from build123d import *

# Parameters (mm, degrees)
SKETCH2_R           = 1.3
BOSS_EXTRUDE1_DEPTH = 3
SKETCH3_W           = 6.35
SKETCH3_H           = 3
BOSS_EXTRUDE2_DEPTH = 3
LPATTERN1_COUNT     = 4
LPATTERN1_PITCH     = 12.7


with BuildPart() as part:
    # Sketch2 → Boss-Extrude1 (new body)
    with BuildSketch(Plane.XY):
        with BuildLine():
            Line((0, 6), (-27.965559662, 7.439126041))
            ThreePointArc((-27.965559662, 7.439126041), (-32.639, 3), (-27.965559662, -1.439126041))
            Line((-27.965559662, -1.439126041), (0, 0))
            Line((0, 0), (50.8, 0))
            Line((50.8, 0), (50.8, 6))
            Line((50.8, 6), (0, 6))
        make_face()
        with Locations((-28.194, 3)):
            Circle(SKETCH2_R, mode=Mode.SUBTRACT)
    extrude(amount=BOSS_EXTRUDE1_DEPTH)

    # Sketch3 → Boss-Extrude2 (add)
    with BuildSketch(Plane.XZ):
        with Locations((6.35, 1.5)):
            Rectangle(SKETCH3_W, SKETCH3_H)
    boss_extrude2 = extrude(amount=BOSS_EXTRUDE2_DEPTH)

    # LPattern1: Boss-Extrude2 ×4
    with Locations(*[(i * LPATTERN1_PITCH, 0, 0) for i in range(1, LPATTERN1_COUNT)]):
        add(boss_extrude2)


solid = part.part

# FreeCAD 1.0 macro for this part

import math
import FreeCAD as App
import Part
import Sketcher

V = App.Vector

doc = App.newDocument("Part")
body = doc.addObject("PartDesign::Body", "Body")

sketch1 = body.newObject("Sketcher::SketchObject", "Sketch")
sketch1.AttachmentSupport = (doc.getObject("XY_Plane"), [""])
sketch1.MapMode = "FlatFace"
sketch1.addGeometry([
    Part.LineSegment(V(0, 6, 0), V(-28, 7.4, 0)),
    Part.ArcOfCircle(Part.Circle(V(-28.2, 3, 0), V(0, 0, 1), 4.4), math.radians(87), math.radians(273)),
    Part.LineSegment(V(-28, -1.4, 0), V(0, 0, 0)),
    Part.LineSegment(V(0, 0, 0), V(50.8, 0, 0)),
    Part.LineSegment(V(50.8, 0, 0), V(50.8, 6, 0)),
    Part.LineSegment(V(50.8, 6, 0), V(0, 6, 0)),
    Part.Circle(V(-28.2, 3, 0), V(0, 0, 1), 1.3),
], False)
sketch1.addConstraint([
    Sketcher.Constraint("Tangent", 0, 2, 1, 1),
    Sketcher.Constraint("Tangent", 1, 2, 2, 1),
    Sketcher.Constraint("Coincident", 2, 2, 3, 1),
    Sketcher.Constraint("Coincident", 3, 2, 4, 1),
    Sketcher.Constraint("Coincident", 4, 2, 5, 1),
    Sketcher.Constraint("Coincident", 5, 2, 0, 1),
    Sketcher.Constraint("Horizontal", 3),
    Sketcher.Constraint("Vertical", 4),
    Sketcher.Constraint("Horizontal", 5),
    Sketcher.Constraint("Coincident", 2, 2, -1, 1),
    Sketcher.Constraint("Coincident", 6, 3, 1, 3),
    Sketcher.Constraint("PointOnObject", 5, 2, -2),
    Sketcher.Constraint("Vertical", 0, 2, 1, 2),
    Sketcher.Constraint("Diameter", 6, 2.6),
    Sketcher.Constraint("DistanceY", 4, 1, 4, 2, 6.0),
    Sketcher.Constraint("DistanceX", 3, 1, 3, 2, 50.8),
    Sketcher.Constraint("Radius", 1, 4.445),
    Sketcher.Constraint("DistanceX", 1, 3, -1, 1, 28.194),
])
pad1 = body.newObject("PartDesign::Pad", "Pad")
pad1.Profile = sketch1
pad1.Length = 3

sketch2 = body.newObject("Sketcher::SketchObject", "Sketch001")
sketch2.AttachmentSupport = (doc.getObject("XZ_Plane"), [""])
sketch2.MapMode = "FlatFace"
sketch2.addGeometry([
    Part.LineSegment(V(3.2, 3, 0), V(3.2, 0, 0)),
    Part.LineSegment(V(3.2, 0, 0), V(9.5, 0, 0)),
    Part.LineSegment(V(9.5, 0, 0), V(9.5, 3, 0)),
    Part.LineSegment(V(9.5, 3, 0), V(3.2, 3, 0)),
], False)
sketch2.addConstraint([
    Sketcher.Constraint("Coincident", 0, 2, 1, 1),
    Sketcher.Constraint("Coincident", 1, 2, 2, 1),
    Sketcher.Constraint("Coincident", 2, 2, 3, 1),
    Sketcher.Constraint("Coincident", 3, 2, 0, 1),
    Sketcher.Constraint("Vertical", 0),
    Sketcher.Constraint("Horizontal", 1),
    Sketcher.Constraint("Vertical", 2),
    Sketcher.Constraint("Horizontal", 3),
    Sketcher.Constraint("PointOnObject", 0, 2, -1),
    Sketcher.Constraint("DistanceY", 0, 2, 0, 1, 3.0),
    Sketcher.Constraint("DistanceX", 1, 1, 1, 2, 6.35),
    Sketcher.Constraint("DistanceX", -1, 1, 0, 2, 3.175),
])
pad2 = body.newObject("PartDesign::Pad", "Pad001")
pad2.Profile = sketch2
pad2.Length = 3
doc.recompute()

linearpattern = body.newObject("PartDesign::LinearPattern", "LinearPattern")
linearpattern.Originals = [pad2]
linearpattern.Direction = (doc.getObject("X_Axis"), [""])
linearpattern.Mode = "offset"
linearpattern.Offset = 12.7
linearpattern.Occurrences = 4
body.Tip = linearpattern

doc.recompute()
